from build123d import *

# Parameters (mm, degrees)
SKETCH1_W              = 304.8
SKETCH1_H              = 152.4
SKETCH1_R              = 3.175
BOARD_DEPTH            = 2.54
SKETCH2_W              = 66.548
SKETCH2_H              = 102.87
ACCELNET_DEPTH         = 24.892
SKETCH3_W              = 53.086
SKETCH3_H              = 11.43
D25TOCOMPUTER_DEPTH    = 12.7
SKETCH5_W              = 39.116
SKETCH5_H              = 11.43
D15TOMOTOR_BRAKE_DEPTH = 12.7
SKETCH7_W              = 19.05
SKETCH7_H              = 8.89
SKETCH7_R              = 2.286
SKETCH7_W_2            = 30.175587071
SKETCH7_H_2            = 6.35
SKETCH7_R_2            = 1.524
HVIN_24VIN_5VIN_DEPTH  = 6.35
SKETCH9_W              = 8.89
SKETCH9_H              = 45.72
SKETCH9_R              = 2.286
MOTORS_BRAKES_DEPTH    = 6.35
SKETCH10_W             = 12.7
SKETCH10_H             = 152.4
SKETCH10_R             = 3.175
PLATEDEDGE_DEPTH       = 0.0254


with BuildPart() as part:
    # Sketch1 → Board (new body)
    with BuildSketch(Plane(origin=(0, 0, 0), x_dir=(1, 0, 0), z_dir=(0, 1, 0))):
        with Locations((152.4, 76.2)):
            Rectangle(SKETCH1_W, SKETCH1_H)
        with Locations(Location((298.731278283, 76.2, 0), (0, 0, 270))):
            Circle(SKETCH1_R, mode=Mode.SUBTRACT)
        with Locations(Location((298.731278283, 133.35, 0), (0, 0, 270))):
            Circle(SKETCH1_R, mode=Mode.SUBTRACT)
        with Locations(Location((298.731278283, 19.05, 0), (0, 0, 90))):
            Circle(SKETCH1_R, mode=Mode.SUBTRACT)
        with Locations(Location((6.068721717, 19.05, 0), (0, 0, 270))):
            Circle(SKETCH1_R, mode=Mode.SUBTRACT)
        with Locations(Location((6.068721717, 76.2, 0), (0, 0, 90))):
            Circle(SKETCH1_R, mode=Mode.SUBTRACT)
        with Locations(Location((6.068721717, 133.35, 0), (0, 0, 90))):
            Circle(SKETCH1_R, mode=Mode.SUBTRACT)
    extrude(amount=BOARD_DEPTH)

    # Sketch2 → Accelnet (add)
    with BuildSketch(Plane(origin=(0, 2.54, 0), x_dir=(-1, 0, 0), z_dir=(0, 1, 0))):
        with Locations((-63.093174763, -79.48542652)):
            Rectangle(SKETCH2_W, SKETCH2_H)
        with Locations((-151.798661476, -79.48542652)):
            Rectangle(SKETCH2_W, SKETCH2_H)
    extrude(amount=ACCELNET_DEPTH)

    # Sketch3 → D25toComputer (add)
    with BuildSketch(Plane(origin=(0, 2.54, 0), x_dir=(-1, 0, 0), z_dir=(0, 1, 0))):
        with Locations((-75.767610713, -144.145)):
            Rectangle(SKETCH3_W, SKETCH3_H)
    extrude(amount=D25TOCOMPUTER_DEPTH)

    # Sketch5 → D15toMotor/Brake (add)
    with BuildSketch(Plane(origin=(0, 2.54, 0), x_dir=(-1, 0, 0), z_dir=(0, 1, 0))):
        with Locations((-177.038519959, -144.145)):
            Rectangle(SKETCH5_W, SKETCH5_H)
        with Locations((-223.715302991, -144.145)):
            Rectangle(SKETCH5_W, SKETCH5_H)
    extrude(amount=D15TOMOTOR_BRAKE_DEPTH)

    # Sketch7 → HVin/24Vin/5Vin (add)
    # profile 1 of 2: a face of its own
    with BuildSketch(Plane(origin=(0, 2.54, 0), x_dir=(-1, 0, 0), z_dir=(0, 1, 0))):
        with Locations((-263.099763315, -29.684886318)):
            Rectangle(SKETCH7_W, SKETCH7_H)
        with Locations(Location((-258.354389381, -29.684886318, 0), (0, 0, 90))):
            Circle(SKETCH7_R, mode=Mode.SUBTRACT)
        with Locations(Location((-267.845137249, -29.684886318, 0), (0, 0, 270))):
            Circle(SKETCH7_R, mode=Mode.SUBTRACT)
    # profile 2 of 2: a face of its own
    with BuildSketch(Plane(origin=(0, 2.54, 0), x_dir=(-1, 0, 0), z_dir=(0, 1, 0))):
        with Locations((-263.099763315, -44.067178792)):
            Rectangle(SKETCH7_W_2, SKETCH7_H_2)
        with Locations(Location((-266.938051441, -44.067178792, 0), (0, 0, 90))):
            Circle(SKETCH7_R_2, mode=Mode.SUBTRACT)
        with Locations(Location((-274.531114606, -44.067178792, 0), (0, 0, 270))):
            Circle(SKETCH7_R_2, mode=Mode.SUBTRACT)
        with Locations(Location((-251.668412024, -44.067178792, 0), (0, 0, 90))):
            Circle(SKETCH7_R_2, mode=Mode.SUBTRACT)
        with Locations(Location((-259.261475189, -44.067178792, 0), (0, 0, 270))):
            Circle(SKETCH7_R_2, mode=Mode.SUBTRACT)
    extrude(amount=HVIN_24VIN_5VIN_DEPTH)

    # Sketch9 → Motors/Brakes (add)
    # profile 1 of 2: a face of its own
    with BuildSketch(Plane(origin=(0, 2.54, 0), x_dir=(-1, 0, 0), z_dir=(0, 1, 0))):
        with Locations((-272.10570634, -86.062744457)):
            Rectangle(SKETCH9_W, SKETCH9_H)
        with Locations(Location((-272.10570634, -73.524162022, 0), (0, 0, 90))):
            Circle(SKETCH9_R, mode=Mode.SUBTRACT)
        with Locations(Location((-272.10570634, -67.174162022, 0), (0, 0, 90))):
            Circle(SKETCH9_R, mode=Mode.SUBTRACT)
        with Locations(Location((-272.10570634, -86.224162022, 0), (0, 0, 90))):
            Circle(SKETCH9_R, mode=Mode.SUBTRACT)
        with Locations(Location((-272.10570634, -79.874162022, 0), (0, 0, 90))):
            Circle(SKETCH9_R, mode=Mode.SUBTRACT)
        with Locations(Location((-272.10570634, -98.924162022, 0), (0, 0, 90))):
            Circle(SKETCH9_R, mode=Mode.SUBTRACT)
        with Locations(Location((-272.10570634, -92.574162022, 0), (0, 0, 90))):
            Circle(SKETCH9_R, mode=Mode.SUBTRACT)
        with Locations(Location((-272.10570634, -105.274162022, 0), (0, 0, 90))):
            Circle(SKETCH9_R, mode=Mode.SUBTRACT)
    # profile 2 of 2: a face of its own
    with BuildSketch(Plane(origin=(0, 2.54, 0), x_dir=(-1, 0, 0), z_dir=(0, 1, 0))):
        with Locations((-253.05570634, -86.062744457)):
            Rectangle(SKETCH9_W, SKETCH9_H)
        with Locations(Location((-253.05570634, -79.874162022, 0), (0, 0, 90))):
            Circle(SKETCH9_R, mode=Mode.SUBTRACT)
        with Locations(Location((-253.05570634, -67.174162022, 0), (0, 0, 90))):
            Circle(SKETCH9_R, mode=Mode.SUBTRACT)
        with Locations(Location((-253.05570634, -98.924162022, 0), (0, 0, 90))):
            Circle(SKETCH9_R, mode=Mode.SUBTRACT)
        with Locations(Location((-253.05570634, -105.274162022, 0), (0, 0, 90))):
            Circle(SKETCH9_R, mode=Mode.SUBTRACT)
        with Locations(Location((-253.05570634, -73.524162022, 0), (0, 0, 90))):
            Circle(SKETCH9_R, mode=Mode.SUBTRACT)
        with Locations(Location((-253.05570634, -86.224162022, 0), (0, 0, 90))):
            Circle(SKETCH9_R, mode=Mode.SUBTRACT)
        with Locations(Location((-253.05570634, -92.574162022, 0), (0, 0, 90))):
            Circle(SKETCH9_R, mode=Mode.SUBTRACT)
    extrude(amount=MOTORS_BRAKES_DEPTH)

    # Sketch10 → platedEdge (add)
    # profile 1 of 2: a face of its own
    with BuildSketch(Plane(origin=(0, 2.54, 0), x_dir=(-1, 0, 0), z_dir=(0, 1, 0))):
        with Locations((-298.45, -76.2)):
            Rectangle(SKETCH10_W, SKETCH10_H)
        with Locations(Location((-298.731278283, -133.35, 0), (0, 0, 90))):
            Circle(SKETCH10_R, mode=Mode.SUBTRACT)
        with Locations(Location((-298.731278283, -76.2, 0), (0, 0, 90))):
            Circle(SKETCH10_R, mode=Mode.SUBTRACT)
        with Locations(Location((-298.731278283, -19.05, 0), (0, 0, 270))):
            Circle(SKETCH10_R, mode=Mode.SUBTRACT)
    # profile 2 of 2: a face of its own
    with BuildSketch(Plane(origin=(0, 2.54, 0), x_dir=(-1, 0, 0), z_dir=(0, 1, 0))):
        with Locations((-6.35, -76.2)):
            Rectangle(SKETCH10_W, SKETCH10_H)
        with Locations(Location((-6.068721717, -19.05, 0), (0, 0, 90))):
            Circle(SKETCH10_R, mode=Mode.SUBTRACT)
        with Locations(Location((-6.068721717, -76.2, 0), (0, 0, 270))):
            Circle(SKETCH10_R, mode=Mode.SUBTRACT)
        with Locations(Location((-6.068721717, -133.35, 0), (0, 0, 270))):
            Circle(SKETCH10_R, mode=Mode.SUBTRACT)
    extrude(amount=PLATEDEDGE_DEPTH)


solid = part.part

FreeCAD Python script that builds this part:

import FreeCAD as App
import Part
import Sketcher

V = App.Vector
Q = App.Units.Quantity


def add_polygon(sketch, points):
    """Adds a closed chain of lines whose ends are joined by coincident constraints."""
    first, n = sketch.GeometryCount, len(points)
    for a, b in zip(points, points[1:] + points[:1]):
        sketch.addGeometry(Part.LineSegment(App.Vector(*a, 0), App.Vector(*b, 0)), False)
    for i in range(n):
        sketch.addConstraint(Sketcher.Constraint("Coincident", first + i, 2, first + (i + 1) % n, 1))

doc = App.newDocument("Part")
body = doc.addObject("PartDesign::Body", "Body")

sketch1 = body.newObject("Sketcher::SketchObject", "Sketch")
sketch1.AttachmentSupport = (doc.getObject("XZ_Plane"), [""])
sketch1.MapMode = "FlatFace"
add_polygon(sketch1, [(0, -152.4), (0, 0), (304.8, 0), (304.8, -152.4)])
sketch1.addGeometry(Part.Circle(V(6.1, -19.1, 0), V(0, 0, 1), 3.2), False)
sketch1.addGeometry(Part.Circle(V(298.7, -19.1, 0), V(0, 0, 1), 3.2), False)
sketch1.addGeometry(Part.Circle(V(6.1, -76.2, 0), V(0, 0, 1), 3.2), False)
sketch1.addGeometry(Part.Circle(V(6.1, -133.3, 0), V(0, 0, 1), 3.2), False)
sketch1.addGeometry(Part.Circle(V(298.7, -76.2, 0), V(0, 0, 1), 3.2), False)
sketch1.addGeometry(Part.Circle(V(298.7, -133.3, 0), V(0, 0, 1), 3.2), False)
sketch1.addConstraint([
    Sketcher.Constraint("Vertical", 0),
    Sketcher.Constraint("Horizontal", 1),
    Sketcher.Constraint("Vertical", 2),
    Sketcher.Constraint("Horizontal", 3),
    Sketcher.Constraint("Coincident", 0, 2, -1, 1),
    Sketcher.Constraint("Equal", 4, 5),
    Sketcher.Constraint("Equal", 5, 6),
    Sketcher.Constraint("Equal", 6, 7),
    Sketcher.Constraint("Equal", 7, 8),
    Sketcher.Constraint("Equal", 8, 9),
    Sketcher.Constraint("Horizontal", 4, 3, 5, 3),
    Sketcher.Constraint("Horizontal", 6, 3, 8, 3),
    Sketcher.Constraint("Horizontal", 7, 3, 9, 3),
    Sketcher.Constraint("Vertical", 4, 3, 6, 3),
    Sketcher.Constraint("Vertical", 6, 3, 7, 3),
    Sketcher.Constraint("Vertical", 5, 3, 8, 3),
    Sketcher.Constraint("Vertical", 8, 3, 9, 3),
    Sketcher.Constraint("Diameter", 4, Q("0.25 in")),
    Sketcher.Constraint("DistanceX", 1, 1, 1, 2, Q("12 in")),
    Sketcher.Constraint("DistanceY", 0, 1, 0, 2, Q("6 in")),
    Sketcher.Constraint("DistanceY", 6, 3, -1, 1, Q("3 in")),
    Sketcher.Constraint("DistanceY", 7, 3, 4, 3, Q("4.5 in")),
    Sketcher.Constraint("DistanceY", 4, 3, -1, 1, Q("0.75 in")),
    Sketcher.Constraint("DistanceX", -1, 1, 4, 3, 6.068722),
    Sketcher.Constraint("DistanceX", -1, 1, 5, 3, 298.731278),
])
pad1 = body.newObject("PartDesign::Pad", "Pad")
pad1.Profile = sketch1
pad1.Length = Q("0.1 in")
pad1.Reversed = True

sketch2 = body.newObject("Sketcher::SketchObject", "Sketch001")
sketch2.AttachmentSupport = (doc.getObject("XZ_Plane"), [""])
sketch2.MapMode = "FlatFace"
sketch2.AttachmentOffset = App.Placement(V(0, 0, -0.1 * 25.4), App.Rotation())
add_polygon(sketch2, [(96, -28), (96, -131), (30, -131), (30, -28)])
add_polygon(sketch2, [(185, -28), (185, -131), (119, -131), (119, -28)])
sketch2.addConstraint([
    Sketcher.Constraint("Vertical", 0),
    Sketcher.Constraint("Horizontal", 1),
    Sketcher.Constraint("Vertical", 2),
    Sketcher.Constraint("Horizontal", 3),
    Sketcher.Constraint("Vertical", 4),
    Sketcher.Constraint("Horizontal", 5),
    Sketcher.Constraint("Vertical", 6),
    Sketcher.Constraint("Horizontal", 7),
    Sketcher.Constraint("Horizontal", 1, 2, 4, 2),
    Sketcher.Constraint("Horizontal", 3, 2, 6, 2),
    Sketcher.Constraint("Equal", 3, 5),
    Sketcher.Constraint("DistanceX", 1, 2, 1, 1, Q("2.62 in")),
    Sketcher.Constraint("DistanceY", 0, 2, 0, 1, Q("4.05 in")),
    Sketcher.Constraint("DistanceX", -1, 1, 4, 2, 185.072661),
    Sketcher.Constraint("DistanceX", -1, 1, 0, 2, 96.367175),
    Sketcher.Constraint("DistanceY", 0, 2, -1, 1, 130.920427),
])
pad2 = body.newObject("PartDesign::Pad", "Pad001")
pad2.Profile = sketch2
pad2.Length = Q("0.98 in")
pad2.Reversed = True

sketch3 = body.newObject("Sketcher::SketchObject", "Sketch002")
sketch3.AttachmentSupport = (doc.getObject("XZ_Plane"), [""])
sketch3.MapMode = "FlatFace"
sketch3.AttachmentOffset = App.Placement(V(0, 0, -0.1 * 25.4), App.Rotation())
add_polygon(sketch3, [(102, -138), (102, -150), (49, -150), (49, -138)])
sketch3.addConstraint([
    Sketcher.Constraint("Vertical", 0),
    Sketcher.Constraint("Horizontal", 1),
    Sketcher.Constraint("Vertical", 2),
    Sketcher.Constraint("Horizontal", 3),
    Sketcher.Constraint("DistanceX", 1, 2, 1, 1, Q("2.09 in")),
    Sketcher.Constraint("DistanceY", 0, 2, 0, 1, Q("0.45 in")),
    Sketcher.Constraint("DistanceY", 0, 2, -1, 1, Q("5.9 in")),
    Sketcher.Constraint("DistanceX", -1, 1, 0, 2, 102.310611),
])
pad3 = body.newObject("PartDesign::Pad", "Pad002")
pad3.Profile = sketch3
pad3.Length = Q("0.5 in")
pad3.Reversed = True

sketch4 = body.newObject("Sketcher::SketchObject", "Sketch003")
sketch4.AttachmentSupport = (doc.getObject("XZ_Plane"), [""])
sketch4.MapMode = "FlatFace"
sketch4.AttachmentOffset = App.Placement(V(0, 0, -0.1 * 25.4), App.Rotation())
add_polygon(sketch4, [(197, -138), (197, -150), (157, -150), (157, -138)])
add_polygon(sketch4, [(243, -138), (243, -150), (204, -150), (204, -138)])
sketch4.addConstraint([
    Sketcher.Constraint("Vertical", 0),
    Sketcher.Constraint("Horizontal", 1),
    Sketcher.Constraint("Vertical", 2),
    Sketcher.Constraint("Horizontal", 3),
    Sketcher.Constraint("Vertical", 4),
    Sketcher.Constraint("Horizontal", 5),
    Sketcher.Constraint("Vertical", 6),
    Sketcher.Constraint("Horizontal", 7),
    Sketcher.Constraint("Horizontal", 1, 2, 4, 2),
    Sketcher.Constraint("Horizontal", 3, 2, 6, 2),
    Sketcher.Constraint("Equal", 3, 5),
    Sketcher.Constraint("DistanceX", 1, 2, 1, 1, Q("1.54 in")),
    Sketcher.Constraint("DistanceY", 0, 2, 0, 1, Q("0.45 in")),
    Sketcher.Constraint("DistanceY", 0, 2, -1, 1, Q("5.9 in")),
    Sketcher.Constraint("DistanceX", -1, 1, 0, 2, 196.59652),
    Sketcher.Constraint("DistanceX", -1, 1, 4, 2, 243.273303),
])
pad4 = body.newObject("PartDesign::Pad", "Pad003")
pad4.Profile = sketch4
pad4.Length = Q("0.5 in")
pad4.Reversed = True

sketch5 = body.newObject("Sketcher::SketchObject", "Sketch004")
sketch5.AttachmentSupport = (doc.getObject("XZ_Plane"), [""])
sketch5.MapMode = "FlatFace"
sketch5.AttachmentOffset = App.Placement(V(0, 0, -0.1 * 25.4), App.Rotation())
add_polygon(sketch5, [(272.6, -25.2), (272.6, -34.1), (253.6, -34.1), (253.6, -25.2)])
sketch5.addGeometry(Part.Circle(V(267.8, -29.7, 0), V(0, 0, 1), 2.3), False)
sketch5.addGeometry(Part.Circle(V(258.4, -29.7, 0), V(0, 0, 1), 2.3), False)
add_polygon(sketch5, [(278.2, -40.9), (278.2, -47.2), (248, -47.2), (248, -40.9)])
sketch5.addGeometry(Part.Circle(V(274.5, -44.1, 0), V(0, 0, 1), 1.5), False)
sketch5.addGeometry(Part.Circle(V(266.9, -44.1, 0), V(0, 0, 1), 1.5), False)
sketch5.addGeometry(Part.Circle(V(259.3, -44.1, 0), V(0, 0, 1), 1.5), False)
sketch5.addGeometry(Part.Circle(V(251.7, -44.1, 0), V(0, 0, 1), 1.5), False)
sketch5.addConstraint([
    Sketcher.Constraint("Vertical", 0),
    Sketcher.Constraint("Horizontal", 1),
    Sketcher.Constraint("Vertical", 2),
    Sketcher.Constraint("Horizontal", 3),
    Sketcher.Constraint("Vertical", 6),
    Sketcher.Constraint("Horizontal", 7),
    Sketcher.Constraint("Vertical", 8),
    Sketcher.Constraint("Horizontal", 9),
    Sketcher.Constraint("Equal", 4, 5),
    Sketcher.Constraint("Equal", 10, 11),
    Sketcher.Constraint("Equal", 11, 12),
    Sketcher.Constraint("Equal", 12, 13),
    Sketcher.Constraint("Horizontal", 4, 3, 5, 3),
    Sketcher.Constraint("Horizontal", 10, 3, 11, 3),
    Sketcher.Constraint("Horizontal", 11, 3, 12, 3),
    Sketcher.Constraint("Horizontal", 12, 3, 13, 3),
    Sketcher.Constraint("Diameter", 4, Q("0.18 in")),
    Sketcher.Constraint("Diameter", 10, Q("0.12 in")),
    Sketcher.Constraint("DistanceX", 1, 2, 1, 1, Q("0.75 in")),
    Sketcher.Constraint("DistanceY", 0, 2, 0, 1, Q("0.35 in")),
    Sketcher.Constraint("DistanceY", 6, 2, 6, 1, Q("0.25 in")),
    Sketcher.Constraint("DistanceY", 0, 2, 4, 3, Q("0.175 in")),
    Sketcher.Constraint("DistanceY", 6, 2, 10, 3, Q("0.125 in")),
    Sketcher.Constraint("DistanceX", 7, 2, 7, 1, 30.175587),
    Sketcher.Constraint("DistanceX", -1, 1, 5, 3, 258.354389),
    Sketcher.Constraint("DistanceY", 10, 3, -1, 1, 44.067179),
    Sketcher.Constraint("DistanceX", -1, 1, 11, 3, 266.938051),
    Sketcher.Constraint("DistanceX", -1, 1, 7, 2, 248.01197),
    Sketcher.Constraint("DistanceX", 12, 3, 10, 3, 15.269639),
    Sketcher.Constraint("DistanceX", 13, 3, 11, 3, 15.269639),
    Sketcher.Constraint("DistanceX", 0, 2, 10, 3, 1.906351),
    Sketcher.Constraint("DistanceX", 11, 3, 0, 2, 5.686712),
    Sketcher.Constraint("DistanceX", 4, 3, 6, 2, 10.34242),
    Sketcher.Constraint("DistanceY", 4, 3, -1, 1, 29.684886),
])
pad5 = body.newObject("PartDesign::Pad", "Pad004")
pad5.Profile = sketch5
pad5.Length = Q("0.25 in")
pad5.Reversed = True

sketch6 = body.newObject("Sketcher::SketchObject", "Sketch005")
sketch6.AttachmentSupport = (doc.getObject("XZ_Plane"), [""])
sketch6.MapMode = "FlatFace"
sketch6.AttachmentOffset = App.Placement(V(0, 0, -0.1 * 25.4), App.Rotation())
add_polygon(sketch6, [(276.6, -63.2), (276.6, -108.9), (267.7, -108.9), (267.7, -63.2)])
sketch6.addGeometry(Part.Circle(V(272.1, -105.3, 0), V(0, 0, 1), 2.3), False)
sketch6.addGeometry(Part.Circle(V(272.1, -98.9, 0), V(0, 0, 1), 2.3), False)
sketch6.addGeometry(Part.Circle(V(272.1, -92.6, 0), V(0, 0, 1), 2.3), False)
sketch6.addGeometry(Part.Circle(V(272.1, -86.2, 0), V(0, 0, 1), 2.3), False)
sketch6.addGeometry(Part.Circle(V(272.1, -79.9, 0), V(0, 0, 1), 2.3), False)
sketch6.addGeometry(Part.Circle(V(272.1, -73.5, 0), V(0, 0, 1), 2.3), False)
sketch6.addGeometry(Part.Circle(V(272.1, -67.2, 0), V(0, 0, 1), 2.3), False)
add_polygon(sketch6, [(257.5, -63.2), (257.5, -108.9), (248.6, -108.9), (248.6, -63.2)])
sketch6.addGeometry(Part.Circle(V(253.1, -105.3, 0), V(0, 0, 1), 2.3), False)
sketch6.addGeometry(Part.Circle(V(253.1, -98.9, 0), V(0, 0, 1), 2.3), False)
sketch6.addGeometry(Part.Circle(V(253.1, -92.6, 0), V(0, 0, 1), 2.3), False)
sketch6.addGeometry(Part.Circle(V(253.1, -86.2, 0), V(0, 0, 1), 2.3), False)
sketch6.addGeometry(Part.Circle(V(253.1, -79.9, 0), V(0, 0, 1), 2.3), False)
sketch6.addGeometry(Part.Circle(V(253.1, -73.5, 0), V(0, 0, 1), 2.3), False)
sketch6.addGeometry(Part.Circle(V(253.1, -67.2, 0), V(0, 0, 1), 2.3), False)
sketch6.addConstraint([
    Sketcher.Constraint("Vertical", 0),
    Sketcher.Constraint("Horizontal", 1),
    Sketcher.Constraint("Vertical", 2),
    Sketcher.Constraint("Horizontal", 3),
    Sketcher.Constraint("Vertical", 11),
    Sketcher.Constraint("Horizontal", 12),
    Sketcher.Constraint("Vertical", 13),
    Sketcher.Constraint("Horizontal", 14),
    Sketcher.Constraint("Equal", 4, 5),
    Sketcher.Constraint("Equal", 5, 6),
    Sketcher.Constraint("Equal", 6, 7),
    Sketcher.Constraint("Equal", 7, 8),
    Sketcher.Constraint("Equal", 8, 9),
    Sketcher.Constraint("Equal", 9, 10),
    Sketcher.Constraint("Equal", 10, 15),
    Sketcher.Constraint("Equal", 15, 16),
    Sketcher.Constraint("Equal", 16, 17),
    Sketcher.Constraint("Equal", 17, 18),
    Sketcher.Constraint("Equal", 18, 19),
    Sketcher.Constraint("Equal", 19, 20),
    Sketcher.Constraint("Equal", 20, 21),
    Sketcher.Constraint("Horizontal", 4, 3, 15, 3),
    Sketcher.Constraint("Horizontal", 5, 3, 16, 3),
    Sketcher.Constraint("Horizontal", 6, 3, 17, 3),
    Sketcher.Constraint("Horizontal", 7, 3, 18, 3),
    Sketcher.Constraint("Horizontal", 8, 3, 19, 3),
    Sketcher.Constraint("Horizontal", 9, 3, 20, 3),
    Sketcher.Constraint("Horizontal", 10, 3, 21, 3),
    Sketcher.Constraint("Horizontal", 1, 2, 11, 2),
    Sketcher.Constraint("Horizontal", 3, 2, 13, 2),
    Sketcher.Constraint("Vertical", 4, 3, 5, 3),
    Sketcher.Constraint("Vertical", 5, 3, 6, 3),
    Sketcher.Constraint("Vertical", 6, 3, 7, 3),
    Sketcher.Constraint("Vertical", 7, 3, 8, 3),
    Sketcher.Constraint("Vertical", 8, 3, 9, 3),
    Sketcher.Constraint("Vertical", 9, 3, 10, 3),
    Sketcher.Constraint("Vertical", 15, 3, 16, 3),
    Sketcher.Constraint("Vertical", 16, 3, 17, 3),
    Sketcher.Constraint("Vertical", 17, 3, 18, 3),
    Sketcher.Constraint("Vertical", 18, 3, 19, 3),
    Sketcher.Constraint("Vertical", 19, 3, 20, 3),
    Sketcher.Constraint("Vertical", 20, 3, 21, 3),
    Sketcher.Constraint("Equal", 3, 12),
    Sketcher.Constraint("Diameter", 4, Q("0.18 in")),
    Sketcher.Constraint("DistanceY", 0, 2, 0, 1, Q("1.8 in")),
    Sketcher.Constraint("DistanceY", 4, 3, 8, 3, Q("1 in")),
    Sketcher.Constraint("DistanceY", 5, 3, 9, 3, Q("1 in")),
    Sketcher.Constraint("DistanceY", 6, 3, 10, 3, Q("1 in")),
    Sketcher.Constraint("DistanceX", 1, 2, 1, 1, Q("0.35 in")),
    Sketcher.Constraint("DistanceY", 4, 3, 6, 3, Q("0.5 in")),
    Sketcher.Constraint("DistanceY", 5, 3, 7, 3, Q("0.5 in")),
    Sketcher.Constraint("DistanceX", 11, 2, 1, 2, Q("0.4 in")),
    Sketcher.Constraint("DistanceY", 4, 3, 5, 3, Q("0.25 in")),
    Sketcher.Constraint("DistanceX", 15, 3, 4, 3, Q("0.75 in")),
    Sketcher.Constraint("DistanceX", 4, 3, 0, 2, Q("0.175 in")),
    Sketcher.Constraint("DistanceX", -1, 1, 4, 3, 272.105706),
    Sketcher.Constraint("DistanceY", 4, 3, -1, 1, 105.274162),
    Sketcher.Constraint("DistanceY", 0, 2, -1, 1, 108.922744),
])
pad6 = body.newObject("PartDesign::Pad", "Pad005")
pad6.Profile = sketch6
pad6.Length = Q("0.25 in")
pad6.Reversed = True

sketch7 = body.newObject("Sketcher::SketchObject", "Sketch006")
sketch7.AttachmentSupport = (doc.getObject("XZ_Plane"), [""])
sketch7.MapMode = "FlatFace"
sketch7.AttachmentOffset = App.Placement(V(0, 0, -0.1 * 25.4), App.Rotation())
add_polygon(sketch7, [(304.8, 0), (304.8, -152.4), (292.1, -152.4), (292.1, 0)])
sketch7.addGeometry(Part.Circle(V(298.7, -133.3, 0), V(0, 0, 1), 3.2), False)
sketch7.addGeometry(Part.Circle(V(298.7, -76.2, 0), V(0, 0, 1), 3.2), False)
sketch7.addGeometry(Part.Circle(V(298.7, -19.1, 0), V(0, 0, 1), 3.2), False)
add_polygon(sketch7, [(12.7, 0), (12.7, -152.4), (0, -152.4), (0, 0)])
sketch7.addGeometry(Part.Circle(V(6.1, -133.3, 0), V(0, 0, 1), 3.2), False)
sketch7.addGeometry(Part.Circle(V(6.1, -76.2, 0), V(0, 0, 1), 3.2), False)
sketch7.addGeometry(Part.Circle(V(6.1, -19.1, 0), V(0, 0, 1), 3.2), False)
sketch7.addConstraint([
    Sketcher.Constraint("Vertical", 0),
    Sketcher.Constraint("Horizontal", 1),
    Sketcher.Constraint("Vertical", 2),
    Sketcher.Constraint("Horizontal", 3),
    Sketcher.Constraint("Vertical", 7),
    Sketcher.Constraint("Horizontal", 8),
    Sketcher.Constraint("Vertical", 9),
    Sketcher.Constraint("Horizontal", 10),
    Sketcher.Constraint("Coincident", 9, 2, -1, 1),
    Sketcher.Constraint("Equal", 4, 5),
    Sketcher.Constraint("Equal", 5, 6),
    Sketcher.Constraint("Equal", 6, 11),
    Sketcher.Constraint("Equal", 11, 12),
    Sketcher.Constraint("Equal", 12, 13),
    Sketcher.Constraint("PointOnObject", 2, 2, -1),
    Sketcher.Constraint("Horizontal", 4, 3, 11, 3),
    Sketcher.Constraint("Horizontal", 5, 3, 12, 3),
    Sketcher.Constraint("Horizontal", 6, 3, 13, 3),
    Sketcher.Constraint("Horizontal", 1, 2, 7, 2),
    Sketcher.Constraint("Vertical", 4, 3, 5, 3),
    Sketcher.Constraint("Vertical", 5, 3, 6, 3),
    Sketcher.Constraint("Vertical", 11, 3, 12, 3),
    Sketcher.Constraint("Vertical", 12, 3, 13, 3),
    Sketcher.Constraint("Equal", 3, 8),
    Sketcher.Constraint("Diameter", 4, Q("0.25 in")),
    Sketcher.Constraint("DistanceY", 0, 2, 0, 1, Q("6 in")),
    Sketcher.Constraint("DistanceX", 1, 2, 1, 1, Q("0.5 in")),
    Sketcher.Constraint("DistanceY", 5, 3, -1, 1, Q("3 in")),
    Sketcher.Constraint("DistanceX", -1, 1, 0, 2, Q("12 in")),
    Sketcher.Constraint("DistanceY", 4, 3, 6, 3, Q("4.5 in")),
    Sketcher.Constraint("DistanceY", 4, 3, -1, 1, Q("5.25 in")),
    Sketcher.Constraint("DistanceX", -1, 1, 4, 3, 298.731278),
    Sketcher.Constraint("DistanceX", -1, 1, 11, 3, 6.068722),
])
pad7 = body.newObject("PartDesign::Pad", "Pad006")
pad7.Profile = sketch7
pad7.Length = Q("0.001 in")
pad7.Reversed = True

doc.recompute()
